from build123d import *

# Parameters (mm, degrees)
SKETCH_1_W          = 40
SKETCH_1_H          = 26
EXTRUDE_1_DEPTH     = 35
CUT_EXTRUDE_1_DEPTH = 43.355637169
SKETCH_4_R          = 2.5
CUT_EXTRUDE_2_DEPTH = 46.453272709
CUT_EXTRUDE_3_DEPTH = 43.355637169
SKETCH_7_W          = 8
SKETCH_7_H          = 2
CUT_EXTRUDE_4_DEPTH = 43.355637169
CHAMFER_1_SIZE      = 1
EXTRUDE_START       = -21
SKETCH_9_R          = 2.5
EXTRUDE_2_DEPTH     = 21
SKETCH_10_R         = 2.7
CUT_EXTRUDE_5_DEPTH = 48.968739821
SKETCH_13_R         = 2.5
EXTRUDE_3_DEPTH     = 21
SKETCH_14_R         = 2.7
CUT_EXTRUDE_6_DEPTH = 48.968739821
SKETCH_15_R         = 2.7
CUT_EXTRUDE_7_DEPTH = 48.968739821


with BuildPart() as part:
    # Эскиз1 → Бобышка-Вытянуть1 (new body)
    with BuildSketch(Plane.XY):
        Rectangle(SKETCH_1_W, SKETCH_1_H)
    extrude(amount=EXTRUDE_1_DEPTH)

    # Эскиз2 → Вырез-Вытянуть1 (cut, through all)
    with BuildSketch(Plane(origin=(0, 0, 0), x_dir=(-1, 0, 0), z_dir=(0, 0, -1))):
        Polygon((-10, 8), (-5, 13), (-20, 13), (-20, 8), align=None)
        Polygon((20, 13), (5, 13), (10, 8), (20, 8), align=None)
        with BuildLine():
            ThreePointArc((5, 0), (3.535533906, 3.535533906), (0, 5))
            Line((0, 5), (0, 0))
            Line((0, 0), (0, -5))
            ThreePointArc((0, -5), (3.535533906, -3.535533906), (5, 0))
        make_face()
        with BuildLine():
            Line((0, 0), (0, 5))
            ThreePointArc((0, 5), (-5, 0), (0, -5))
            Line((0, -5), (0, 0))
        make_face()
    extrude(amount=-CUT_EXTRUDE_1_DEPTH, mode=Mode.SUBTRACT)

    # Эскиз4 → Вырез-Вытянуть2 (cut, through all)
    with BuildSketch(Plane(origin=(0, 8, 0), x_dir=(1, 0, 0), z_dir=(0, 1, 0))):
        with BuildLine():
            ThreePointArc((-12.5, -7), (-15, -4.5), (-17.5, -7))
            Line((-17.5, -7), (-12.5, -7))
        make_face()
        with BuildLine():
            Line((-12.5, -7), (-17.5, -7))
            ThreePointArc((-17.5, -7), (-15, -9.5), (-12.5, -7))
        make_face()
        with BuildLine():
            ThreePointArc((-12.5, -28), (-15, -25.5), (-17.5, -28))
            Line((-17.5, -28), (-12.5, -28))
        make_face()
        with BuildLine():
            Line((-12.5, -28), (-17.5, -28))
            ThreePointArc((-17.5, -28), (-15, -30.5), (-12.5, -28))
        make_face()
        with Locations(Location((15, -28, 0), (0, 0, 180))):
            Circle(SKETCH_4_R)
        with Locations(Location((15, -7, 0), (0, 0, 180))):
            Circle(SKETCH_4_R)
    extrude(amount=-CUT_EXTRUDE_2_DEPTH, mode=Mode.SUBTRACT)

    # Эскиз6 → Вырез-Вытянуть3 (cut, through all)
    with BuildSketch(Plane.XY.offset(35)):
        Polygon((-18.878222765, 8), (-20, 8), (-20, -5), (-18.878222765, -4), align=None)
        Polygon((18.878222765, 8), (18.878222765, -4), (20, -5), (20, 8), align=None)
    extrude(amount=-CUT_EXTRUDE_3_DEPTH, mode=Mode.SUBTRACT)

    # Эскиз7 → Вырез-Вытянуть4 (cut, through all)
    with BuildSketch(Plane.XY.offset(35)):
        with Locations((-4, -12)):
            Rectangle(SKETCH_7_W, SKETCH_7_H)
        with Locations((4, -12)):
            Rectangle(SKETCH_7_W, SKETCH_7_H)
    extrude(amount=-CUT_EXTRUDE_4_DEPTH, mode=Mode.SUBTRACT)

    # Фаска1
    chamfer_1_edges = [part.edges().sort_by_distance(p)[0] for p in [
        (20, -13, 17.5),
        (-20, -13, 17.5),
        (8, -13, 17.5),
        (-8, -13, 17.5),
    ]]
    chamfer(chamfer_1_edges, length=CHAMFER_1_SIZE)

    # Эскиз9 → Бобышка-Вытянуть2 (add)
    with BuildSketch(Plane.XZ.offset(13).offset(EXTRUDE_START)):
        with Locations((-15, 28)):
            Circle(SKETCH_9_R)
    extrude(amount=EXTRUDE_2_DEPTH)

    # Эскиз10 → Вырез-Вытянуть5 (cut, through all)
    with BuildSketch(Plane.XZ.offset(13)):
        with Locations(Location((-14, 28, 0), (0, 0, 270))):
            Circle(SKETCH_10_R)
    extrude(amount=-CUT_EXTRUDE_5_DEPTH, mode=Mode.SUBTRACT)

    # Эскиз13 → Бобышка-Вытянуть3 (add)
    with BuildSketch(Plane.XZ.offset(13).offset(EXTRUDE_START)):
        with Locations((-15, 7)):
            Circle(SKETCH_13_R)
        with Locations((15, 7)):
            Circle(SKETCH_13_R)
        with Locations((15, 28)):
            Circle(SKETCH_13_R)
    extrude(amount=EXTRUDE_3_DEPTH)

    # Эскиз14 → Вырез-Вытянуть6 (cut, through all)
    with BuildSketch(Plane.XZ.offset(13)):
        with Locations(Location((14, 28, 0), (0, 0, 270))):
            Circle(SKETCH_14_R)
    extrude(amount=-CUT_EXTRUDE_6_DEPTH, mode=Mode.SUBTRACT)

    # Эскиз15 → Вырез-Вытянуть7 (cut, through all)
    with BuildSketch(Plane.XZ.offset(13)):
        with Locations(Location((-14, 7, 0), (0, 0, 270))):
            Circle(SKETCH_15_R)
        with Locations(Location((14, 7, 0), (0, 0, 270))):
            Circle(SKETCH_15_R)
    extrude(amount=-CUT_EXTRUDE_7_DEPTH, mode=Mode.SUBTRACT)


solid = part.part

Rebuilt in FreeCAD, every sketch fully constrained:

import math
import FreeCAD as App
import Part
import Sketcher

V = App.Vector


def edges_at(feature, points):
    """Names of the edges that pass closest to the given points."""
    edges = feature.Shape.Edges
    near = lambda p: min(range(len(edges)), key=lambda i: edges[i].distToShape(Part.Vertex(*p))[0])
    return sorted({f"Edge{near(p) + 1}" for p in points})


def add_polygon(sketch, points):
    """Adds a closed chain of lines whose ends are joined by coincident constraints."""
    first, n = sketch.GeometryCount, len(points)
    for a, b in zip(points, points[1:] + points[:1]):
        sketch.addGeometry(Part.LineSegment(App.Vector(*a, 0), App.Vector(*b, 0)), False)
    for i in range(n):
        sketch.addConstraint(Sketcher.Constraint("Coincident", first + i, 2, first + (i + 1) % n, 1))

doc = App.newDocument("Part")
body = doc.addObject("PartDesign::Body", "Body")

sketch1 = body.newObject("Sketcher::SketchObject", "Sketch")
sketch1.AttachmentSupport = (doc.getObject("XY_Plane"), [""])
sketch1.MapMode = "FlatFace"
add_polygon(sketch1, [(-20, 13), (-20, -13), (20, -13), (20, 13)])
sketch1.addConstraint([
    Sketcher.Constraint("Vertical", 0),
    Sketcher.Constraint("Horizontal", 1),
    Sketcher.Constraint("Vertical", 2),
    Sketcher.Constraint("Horizontal", 3),
    Sketcher.Constraint("Symmetric", 0, 2, 2, 2, -1, 1),
    Sketcher.Constraint("DistanceX", 1, 1, 1, 2, 40.0),
    Sketcher.Constraint("DistanceY", 0, 2, 0, 1, 26.0),
])
pad1 = body.newObject("PartDesign::Pad", "Pad")
pad1.Profile = sketch1
pad1.Length = 35

sketch2 = body.newObject("Sketcher::SketchObject", "Sketch001")
sketch2.AttachmentSupport = (doc.getObject("XY_Plane"), [""])
sketch2.MapMode = "FlatFace"
add_polygon(sketch2, [(10, 8), (5, 13), (20, 13), (20, 8)])
add_polygon(sketch2, [(-20, 13), (-5, 13), (-10, 8), (-20, 8)])
sketch2.addGeometry(Part.ArcOfCircle(Part.Circle(V(0, 0, 0), V(0, 0, 1), 5), math.radians(90), math.radians(180)), False)
sketch2.addGeometry(Part.ArcOfCircle(Part.Circle(V(0, 0, 0), V(0, 0, 1), 5), math.radians(-90), math.radians(90)), False)
sketch2.addGeometry(Part.ArcOfCircle(Part.Circle(V(0, 0, 0), V(0, 0, 1), 5), math.radians(180), math.radians(270)), False)
sketch2.addConstraint([
    Sketcher.Constraint("Tangent", 8, 1, 9, 2),
    Sketcher.Constraint("Tangent", 9, 1, 10, 2),
    Sketcher.Constraint("Tangent", 10, 1, 8, 2),
    Sketcher.Constraint("Horizontal", 1),
    Sketcher.Constraint("Vertical", 2),
    Sketcher.Constraint("Horizontal", 3),
    Sketcher.Constraint("Horizontal", 4),
    Sketcher.Constraint("Horizontal", 6),
    Sketcher.Constraint("Vertical", 7),
    Sketcher.Constraint("Coincident", 8, 3, -1, 1),
    Sketcher.Constraint("Symmetric", 0, 2, 4, 2, -2),
    Sketcher.Constraint("Symmetric", 3, 2, 5, 2, -2),
    Sketcher.Constraint("PointOnObject", 8, 1, -2),
    Sketcher.Constraint("PointOnObject", 9, 1, -2),
    Sketcher.Constraint("PointOnObject", 10, 1, -1),
    Sketcher.Constraint("Perpendicular", 0, 5),
    Sketcher.Constraint("Vertical", 4, 2, 10, 1),
    Sketcher.Constraint("Equal", 1, 4),
    Sketcher.Constraint("Radius", 8, 5.0),
    Sketcher.Constraint("DistanceX", 1, 1, 1, 2, 15.0),
    Sketcher.Constraint("DistanceX", 3, 2, 3, 1, 10.0),
    Sketcher.Constraint("DistanceY", -1, 1, 0, 2, 13.0),
])
pocket1 = body.newObject("PartDesign::Pocket", "Pocket")
pocket1.Profile = sketch2
pocket1.Type = "ThroughAll"
pocket1.Reversed = True

sketch3 = body.newObject("Sketcher::SketchObject", "Sketch002")
sketch3.AttachmentSupport = (doc.getObject("XZ_Plane"), [""])
sketch3.MapMode = "FlatFace"
sketch3.AttachmentOffset = App.Placement(V(0, 0, -8), App.Rotation())
sketch3.addGeometry([
    Part.Circle(V(-15, 7, 0), V(0, 0, 1), 2.5),
    Part.Circle(V(-15, 28, 0), V(0, 0, 1), 2.5),
    Part.Circle(V(15, 28, 0), V(0, 0, 1), 2.5),
    Part.Circle(V(15, 7, 0), V(0, 0, 1), 2.5),
], False)
sketch3.addConstraint([
    Sketcher.Constraint("Equal", 0, 1),
    Sketcher.Constraint("Equal", 1, 2),
    Sketcher.Constraint("Equal", 2, 3),
    Sketcher.Constraint("Symmetric", 1, 3, 2, 3, -2),
    Sketcher.Constraint("Symmetric", 0, 3, 3, 3, -2),
    Sketcher.Constraint("Vertical", 0, 3, 1, 3),
    Sketcher.Constraint("Diameter", 0, 5.0),
    Sketcher.Constraint("DistanceX", 0, 3, -1, 1, 15.0),
    Sketcher.Constraint("DistanceY", -1, 1, 0, 3, 7.0),
    Sketcher.Constraint("DistanceY", -1, 1, 1, 3, 28.0),
])
pocket2 = body.newObject("PartDesign::Pocket", "Pocket001")
pocket2.Profile = sketch3
pocket2.Type = "ThroughAll"
pocket2.Reversed = True

sketch4 = body.newObject("Sketcher::SketchObject", "Sketch003")
sketch4.AttachmentSupport = (doc.getObject("XY_Plane"), [""])
sketch4.MapMode = "FlatFace"
sketch4.AttachmentOffset = App.Placement(V(0, 0, 35), App.Rotation())
add_polygon(sketch4, [(-18.9, 8), (-20, 8), (-20, -5), (-18.9, -4)])
add_polygon(sketch4, [(18.9, 8), (18.9, -4), (20, -5), (20, 8)])
sketch4.addConstraint([
    Sketcher.Constraint("Horizontal", 0),
    Sketcher.Constraint("Vertical", 1),
    Sketcher.Constraint("Vertical", 3),
    Sketcher.Constraint("Vertical", 4),
    Sketcher.Constraint("Vertical", 6),
    Sketcher.Constraint("Horizontal", 7),
    Sketcher.Constraint("Symmetric", 2, 2, 4, 2, -2),
    Sketcher.Constraint("Symmetric", 1, 2, 5, 2, -2),
    Sketcher.Constraint("Horizontal", 3, 2, 6, 2),
    Sketcher.Constraint("DistanceY", 1, 2, 1, 1, 13.0),
    Sketcher.Constraint("DistanceY", 3, 1, 3, 2, 12.0),
    Sketcher.Constraint("DistanceX", 0, 2, -1, 1, 20.0),
    Sketcher.Constraint("DistanceY", -1, 1, 0, 2, 8.0),
    Sketcher.Constraint("DistanceX", 0, 2, 0, 1, 1.121777),
])
pocket3 = body.newObject("PartDesign::Pocket", "Pocket002")
pocket3.Profile = sketch4
pocket3.Type = "ThroughAll"

sketch5 = body.newObject("Sketcher::SketchObject", "Sketch004")
sketch5.AttachmentSupport = (doc.getObject("XY_Plane"), [""])
sketch5.MapMode = "FlatFace"
sketch5.AttachmentOffset = App.Placement(V(0, 0, 35), App.Rotation())
add_polygon(sketch5, [(-8, -11), (-8, -13), (8, -13), (8, -11)])
sketch5.addConstraint([
    Sketcher.Constraint("Vertical", 0),
    Sketcher.Constraint("Horizontal", 1),
    Sketcher.Constraint("Vertical", 2),
    Sketcher.Constraint("Horizontal", 3),
    Sketcher.Constraint("DistanceX", 1, 1, 1, 2, 16.0),
    Sketcher.Constraint("DistanceY", 0, 2, 0, 1, 2.0),
    Sketcher.Constraint("DistanceX", 0, 2, -1, 1, 8.0),
    Sketcher.Constraint("DistanceY", 0, 2, -1, 1, 13.0),
])
pocket4 = body.newObject("PartDesign::Pocket", "Pocket003")
pocket4.Profile = sketch5
pocket4.Type = "ThroughAll"
doc.recompute()

chamfer = body.newObject("PartDesign::Chamfer", "Chamfer")
chamfer.Base = (pocket4, edges_at(pocket4, [
    (20, -13, 17.5),
    (-20, -13, 17.5),
    (8, -13, 17.5),
    (-8, -13, 17.5),
]))
chamfer.Size = 1

sketch6 = body.newObject("Sketcher::SketchObject", "Sketch005")
sketch6.AttachmentSupport = (doc.getObject("XZ_Plane"), [""])
sketch6.MapMode = "FlatFace"
sketch6.AttachmentOffset = App.Placement(V(0, 0, -8), App.Rotation())
sketch6.addGeometry(Part.Circle(V(-15, 28, 0), V(0, 0, 1), 2.5), False)
sketch6.addConstraint([
    Sketcher.Constraint("Diameter", 0, 5.0),
    Sketcher.Constraint("DistanceX", 0, 3, -1, 1, 15.0),
    Sketcher.Constraint("DistanceY", -1, 1, 0, 3, 28.0),
])
pad2 = body.newObject("PartDesign::Pad", "Pad001")
pad2.Profile = sketch6
pad2.Length = 21

sketch7 = body.newObject("Sketcher::SketchObject", "Sketch006")
sketch7.AttachmentSupport = (doc.getObject("XZ_Plane"), [""])
sketch7.MapMode = "FlatFace"
sketch7.AttachmentOffset = App.Placement(V(0, 0, 13), App.Rotation())
sketch7.addGeometry(Part.Circle(V(-14, 28, 0), V(0, 0, 1), 2.7), False)
sketch7.addConstraint([
    Sketcher.Constraint("Diameter", 0, 5.4),
    Sketcher.Constraint("DistanceX", 0, 3, -1, 1, 14.0),
    Sketcher.Constraint("DistanceY", -1, 1, 0, 3, 28.0),
])
pocket5 = body.newObject("PartDesign::Pocket", "Pocket004")
pocket5.Profile = sketch7
pocket5.Type = "ThroughAll"

sketch8 = body.newObject("Sketcher::SketchObject", "Sketch007")
sketch8.AttachmentSupport = (doc.getObject("XZ_Plane"), [""])
sketch8.MapMode = "FlatFace"
sketch8.AttachmentOffset = App.Placement(V(0, 0, -8), App.Rotation())
sketch8.addGeometry([
    Part.Circle(V(-15, 7, 0), V(0, 0, 1), 2.5),
    Part.Circle(V(15, 7, 0), V(0, 0, 1), 2.5),
    Part.Circle(V(15, 28, 0), V(0, 0, 1), 2.5),
], False)
sketch8.addConstraint([
    Sketcher.Constraint("Equal", 0, 1),
    Sketcher.Constraint("Equal", 1, 2),
    Sketcher.Constraint("Symmetric", 0, 3, 1, 3, -2),
    Sketcher.Constraint("Vertical", 1, 3, 2, 3),
    Sketcher.Constraint("Diameter", 0, 5.0),
    Sketcher.Constraint("DistanceX", 0, 3, -1, 1, 15.0),
    Sketcher.Constraint("DistanceY", -1, 1, 0, 3, 7.0),
    Sketcher.Constraint("DistanceY", -1, 1, 2, 3, 28.0),
])
pad3 = body.newObject("PartDesign::Pad", "Pad002")
pad3.Profile = sketch8
pad3.Length = 21

sketch9 = body.newObject("Sketcher::SketchObject", "Sketch008")
sketch9.AttachmentSupport = (doc.getObject("XZ_Plane"), [""])
sketch9.MapMode = "FlatFace"
sketch9.AttachmentOffset = App.Placement(V(0, 0, 13), App.Rotation())
sketch9.addGeometry(Part.Circle(V(14, 28, 0), V(0, 0, 1), 2.7), False)
sketch9.addConstraint([
    Sketcher.Constraint("Diameter", 0, 5.4),
    Sketcher.Constraint("DistanceX", -1, 1, 0, 3, 14.0),
    Sketcher.Constraint("DistanceY", -1, 1, 0, 3, 28.0),
])
pocket6 = body.newObject("PartDesign::Pocket", "Pocket005")
pocket6.Profile = sketch9
pocket6.Type = "ThroughAll"

sketch10 = body.newObject("Sketcher::SketchObject", "Sketch009")
sketch10.AttachmentSupport = (doc.getObject("XZ_Plane"), [""])
sketch10.MapMode = "FlatFace"
sketch10.AttachmentOffset = App.Placement(V(0, 0, 13), App.Rotation())
sketch10.addGeometry([
    Part.Circle(V(-14, 7, 0), V(0, 0, 1), 2.7),
    Part.Circle(V(14, 7, 0), V(0, 0, 1), 2.7),
], False)
sketch10.addConstraint([
    Sketcher.Constraint("Equal", 0, 1),
    Sketcher.Constraint("Symmetric", 0, 3, 1, 3, -2),
    Sketcher.Constraint("Diameter", 0, 5.4),
    Sketcher.Constraint("DistanceX", 0, 3, -1, 1, 14.0),
    Sketcher.Constraint("DistanceY", -1, 1, 0, 3, 7.0),
])
pocket7 = body.newObject("PartDesign::Pocket", "Pocket006")
pocket7.Profile = sketch10
pocket7.Type = "ThroughAll"

doc.recompute()
